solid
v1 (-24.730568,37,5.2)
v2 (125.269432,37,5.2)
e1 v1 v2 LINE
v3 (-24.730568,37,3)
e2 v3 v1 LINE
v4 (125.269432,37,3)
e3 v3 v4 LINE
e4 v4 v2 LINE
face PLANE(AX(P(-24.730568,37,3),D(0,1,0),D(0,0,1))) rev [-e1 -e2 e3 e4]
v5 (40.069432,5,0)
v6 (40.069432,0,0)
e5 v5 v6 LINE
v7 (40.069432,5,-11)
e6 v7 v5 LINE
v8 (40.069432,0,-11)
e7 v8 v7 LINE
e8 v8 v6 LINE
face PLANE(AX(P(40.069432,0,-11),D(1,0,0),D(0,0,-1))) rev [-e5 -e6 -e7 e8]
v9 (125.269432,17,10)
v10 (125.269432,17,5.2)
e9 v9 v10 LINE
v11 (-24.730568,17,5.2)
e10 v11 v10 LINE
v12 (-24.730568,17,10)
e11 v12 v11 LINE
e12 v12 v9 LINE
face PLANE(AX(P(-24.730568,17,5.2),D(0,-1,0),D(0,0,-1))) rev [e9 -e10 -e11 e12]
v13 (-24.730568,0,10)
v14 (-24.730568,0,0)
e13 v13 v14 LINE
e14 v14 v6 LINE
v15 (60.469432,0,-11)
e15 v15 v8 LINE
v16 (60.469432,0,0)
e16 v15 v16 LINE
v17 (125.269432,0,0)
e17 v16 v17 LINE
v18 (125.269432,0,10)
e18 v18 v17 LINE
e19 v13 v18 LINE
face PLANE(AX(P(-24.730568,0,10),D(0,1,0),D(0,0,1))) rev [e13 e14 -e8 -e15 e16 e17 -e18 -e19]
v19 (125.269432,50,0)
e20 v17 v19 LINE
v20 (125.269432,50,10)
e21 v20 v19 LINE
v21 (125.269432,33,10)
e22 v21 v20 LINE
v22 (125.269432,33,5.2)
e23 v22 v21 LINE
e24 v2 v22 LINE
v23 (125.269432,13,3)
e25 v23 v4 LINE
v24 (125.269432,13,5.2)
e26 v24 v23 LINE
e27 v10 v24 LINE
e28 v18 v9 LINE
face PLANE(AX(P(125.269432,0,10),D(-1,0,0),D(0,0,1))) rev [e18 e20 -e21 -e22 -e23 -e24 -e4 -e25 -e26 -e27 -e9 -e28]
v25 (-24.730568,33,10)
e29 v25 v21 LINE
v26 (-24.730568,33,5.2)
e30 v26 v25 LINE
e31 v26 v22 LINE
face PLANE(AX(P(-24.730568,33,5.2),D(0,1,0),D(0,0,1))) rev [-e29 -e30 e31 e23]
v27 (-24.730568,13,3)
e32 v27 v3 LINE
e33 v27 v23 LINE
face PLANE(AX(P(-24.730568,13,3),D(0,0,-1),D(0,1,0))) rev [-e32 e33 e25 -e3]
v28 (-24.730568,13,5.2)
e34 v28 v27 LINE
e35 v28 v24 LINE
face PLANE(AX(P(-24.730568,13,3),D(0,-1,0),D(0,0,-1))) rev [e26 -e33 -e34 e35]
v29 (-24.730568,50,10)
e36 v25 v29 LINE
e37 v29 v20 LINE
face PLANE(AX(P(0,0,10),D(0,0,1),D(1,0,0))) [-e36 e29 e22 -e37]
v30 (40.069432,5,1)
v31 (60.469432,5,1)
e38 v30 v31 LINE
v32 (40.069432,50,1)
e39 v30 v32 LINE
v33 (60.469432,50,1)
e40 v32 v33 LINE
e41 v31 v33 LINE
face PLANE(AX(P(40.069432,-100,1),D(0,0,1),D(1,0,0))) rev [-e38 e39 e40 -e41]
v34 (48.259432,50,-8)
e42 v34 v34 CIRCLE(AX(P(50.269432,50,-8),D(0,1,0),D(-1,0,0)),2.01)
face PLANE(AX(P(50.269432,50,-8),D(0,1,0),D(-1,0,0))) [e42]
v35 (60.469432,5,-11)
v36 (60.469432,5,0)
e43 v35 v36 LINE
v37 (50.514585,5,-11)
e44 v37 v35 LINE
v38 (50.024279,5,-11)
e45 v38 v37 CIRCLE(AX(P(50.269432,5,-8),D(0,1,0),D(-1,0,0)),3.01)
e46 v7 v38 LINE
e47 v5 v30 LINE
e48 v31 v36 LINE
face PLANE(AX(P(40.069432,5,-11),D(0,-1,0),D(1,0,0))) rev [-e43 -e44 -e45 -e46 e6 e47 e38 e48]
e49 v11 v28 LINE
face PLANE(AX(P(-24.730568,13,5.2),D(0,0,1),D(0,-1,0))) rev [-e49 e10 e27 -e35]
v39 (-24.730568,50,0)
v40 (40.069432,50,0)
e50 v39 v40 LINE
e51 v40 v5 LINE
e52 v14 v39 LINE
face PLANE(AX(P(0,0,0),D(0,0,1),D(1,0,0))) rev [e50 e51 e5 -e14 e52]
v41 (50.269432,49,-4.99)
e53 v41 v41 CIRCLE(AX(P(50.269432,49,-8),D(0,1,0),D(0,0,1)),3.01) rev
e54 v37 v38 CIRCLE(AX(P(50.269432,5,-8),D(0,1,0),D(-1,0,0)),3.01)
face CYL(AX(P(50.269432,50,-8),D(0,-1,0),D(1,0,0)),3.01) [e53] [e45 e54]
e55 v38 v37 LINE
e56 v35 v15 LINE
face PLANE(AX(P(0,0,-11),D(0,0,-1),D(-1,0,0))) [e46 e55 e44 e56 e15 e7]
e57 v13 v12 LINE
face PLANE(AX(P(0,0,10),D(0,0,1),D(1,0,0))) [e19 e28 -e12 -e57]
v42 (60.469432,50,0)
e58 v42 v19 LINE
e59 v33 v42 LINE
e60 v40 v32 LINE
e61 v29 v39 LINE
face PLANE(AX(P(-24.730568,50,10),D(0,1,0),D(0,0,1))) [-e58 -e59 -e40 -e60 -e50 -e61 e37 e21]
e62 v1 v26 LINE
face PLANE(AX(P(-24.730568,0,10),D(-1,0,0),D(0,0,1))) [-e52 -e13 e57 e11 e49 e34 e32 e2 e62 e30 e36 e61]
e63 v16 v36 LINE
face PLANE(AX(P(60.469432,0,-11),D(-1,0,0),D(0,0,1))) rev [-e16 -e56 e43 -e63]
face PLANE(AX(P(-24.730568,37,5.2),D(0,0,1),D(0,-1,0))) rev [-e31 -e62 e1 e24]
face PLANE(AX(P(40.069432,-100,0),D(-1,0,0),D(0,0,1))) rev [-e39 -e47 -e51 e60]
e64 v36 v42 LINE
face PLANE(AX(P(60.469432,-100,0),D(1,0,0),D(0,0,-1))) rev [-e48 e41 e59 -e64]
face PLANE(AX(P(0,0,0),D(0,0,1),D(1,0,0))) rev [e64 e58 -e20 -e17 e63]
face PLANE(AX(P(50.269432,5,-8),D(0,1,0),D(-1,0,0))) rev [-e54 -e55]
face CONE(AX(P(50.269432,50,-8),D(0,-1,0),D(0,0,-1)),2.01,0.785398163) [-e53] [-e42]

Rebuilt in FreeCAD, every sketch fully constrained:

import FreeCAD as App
import Part
import Sketcher


def edges_at(feature, points):
    """Names of the edges that pass closest to the given points."""
    edges = feature.Shape.Edges
    near = lambda p: min(range(len(edges)), key=lambda i: edges[i].distToShape(Part.Vertex(*p))[0])
    return sorted({f"Edge{near(p) + 1}" for p in points})

doc = App.newDocument("Part")
params = doc.addObject("Spreadsheet::Sheet", "Params")
for row, (alias, value) in enumerate([
    ("sketch1_width", "150 mm"),
    ("sketch1_height", "50 mm"),
    ("pad1_length", "10 mm"),
    ("sketch2_width", "24 mm"),
    ("sketch2_width2", "4 mm"),
    ("sketch2_height", "2.2 mm"),
    ("sketch2_height2", "4.8 mm"),
    ("pocket1_length", "150 mm"),
    ("sketch3_height", "1 mm"),
    ("sketch3_width", "20.4 mm"),
    ("pocket2_length", "150 mm"),
    ("sketch4_height", "5 mm"),
    ("sketch4_width", "20.4 mm"),
    ("pad2_length", "12 mm"),
    ("sketch5_diameter", "6.02 mm"),
    ("pad3_length", "45 mm"),
    ("chamfer_size", "1 mm"),
], start=1):
    params.set(f"A{row}", alias)
    params.set(f"B{row}", "=" + value)
    params.setAlias(f"B{row}", alias)

body = doc.addObject("PartDesign::Body", "Body")

sketch1 = doc.addObject("Sketcher::SketchObject", "Sketch")
body.addObject(sketch1)
sketch1.AttachmentSupport = (doc.XY_Plane, [""])
sketch1.MapMode = "FlatFace"
sketch1.addGeometry([
    Part.LineSegment(App.Vector(-25, 50, 0), App.Vector(-25, 0, 0)),
    Part.LineSegment(App.Vector(-25, 0, 0), App.Vector(125, 0, 0)),
    Part.LineSegment(App.Vector(125, 0, 0), App.Vector(125, 50, 0)),
    Part.LineSegment(App.Vector(125, 50, 0), App.Vector(-25, 50, 0)),
], False)
sketch1.addConstraint([
    Sketcher.Constraint("Coincident", 0, 2, 1, 1),
    Sketcher.Constraint("Coincident", 1, 2, 2, 1),
    Sketcher.Constraint("Coincident", 2, 2, 3, 1),
    Sketcher.Constraint("Coincident", 3, 2, 0, 1),
    Sketcher.Constraint("Vertical", 0),
    Sketcher.Constraint("Horizontal", 1),
    Sketcher.Constraint("Vertical", 2),
    Sketcher.Constraint("Horizontal", 3),
    Sketcher.Constraint("PointOnObject", 0, 2, -1),
    Sketcher.Constraint("DistanceX", 1, 1, 1, 2, 150.0),
    Sketcher.Constraint("DistanceY", 0, 2, 0, 1, 50.0),
    Sketcher.Constraint("DistanceX", 0, 2, -1, 1, 24.730568),
])
sketch1.setExpression("Constraints[9]", "Params.sketch1_width")
sketch1.setExpression("Constraints[10]", "Params.sketch1_height")
pad1 = doc.addObject("PartDesign::Pad", "Pad")
body.addObject(pad1)
pad1.Profile = sketch1
pad1.setExpression("Length", "Params.pad1_length")

sketch2 = doc.addObject("Sketcher::SketchObject", "Sketch001")
body.addObject(sketch2)
sketch2.AttachmentSupport = (doc.YZ_Plane, [""])
sketch2.MapMode = "FlatFace"
sketch2.AttachmentOffset = App.Placement(App.Vector(0, 0, 125.269432), App.Rotation())
sketch2.addGeometry([
    Part.LineSegment(App.Vector(13, 3, 0), App.Vector(37, 3, 0)),
    Part.LineSegment(App.Vector(37, 3, 0), App.Vector(37, 5.2, 0)),
    Part.LineSegment(App.Vector(37, 5.2, 0), App.Vector(33, 5.2, 0)),
    Part.LineSegment(App.Vector(33, 5.2, 0), App.Vector(33, 10, 0)),
    Part.LineSegment(App.Vector(33, 10, 0), App.Vector(17, 10, 0)),
    Part.LineSegment(App.Vector(17, 10, 0), App.Vector(17, 5.2, 0)),
    Part.LineSegment(App.Vector(17, 5.2, 0), App.Vector(13, 5.2, 0)),
    Part.LineSegment(App.Vector(13, 5.2, 0), App.Vector(13, 3, 0)),
], False)
sketch2.addConstraint([
    Sketcher.Constraint("Coincident", 0, 2, 1, 1),
    Sketcher.Constraint("Coincident", 1, 2, 2, 1),
    Sketcher.Constraint("Coincident", 2, 2, 3, 1),
    Sketcher.Constraint("Coincident", 3, 2, 4, 1),
    Sketcher.Constraint("Coincident", 4, 2, 5, 1),
    Sketcher.Constraint("Coincident", 5, 2, 6, 1),
    Sketcher.Constraint("Coincident", 6, 2, 7, 1),
    Sketcher.Constraint("Coincident", 7, 2, 0, 1),
    Sketcher.Constraint("Horizontal", 0),
    Sketcher.Constraint("Vertical", 1),
    Sketcher.Constraint("Horizontal", 2),
    Sketcher.Constraint("Vertical", 3),
    Sketcher.Constraint("Horizontal", 4),
    Sketcher.Constraint("Vertical", 5),
    Sketcher.Constraint("Horizontal", 6),
    Sketcher.Constraint("Vertical", 7),
    Sketcher.Constraint("Horizontal", 2, 2, 5, 2),
    Sketcher.Constraint("Equal", 2, 6),
    Sketcher.Constraint("DistanceX", 0, 1, 0, 2, 24.0),
    Sketcher.Constraint("DistanceX", 2, 2, 2, 1, 4.0),
    Sketcher.Constraint("DistanceY", 1, 1, 1, 2, 2.2),
    Sketcher.Constraint("DistanceY", 3, 1, 3, 2, 4.8),
    Sketcher.Constraint("DistanceX", -1, 1, 0, 2, 37.0),
    Sketcher.Constraint("DistanceY", -1, 1, 0, 2, 3.0),
])
sketch2.setExpression("Constraints[18]", "Params.sketch2_width")
sketch2.setExpression("Constraints[19]", "Params.sketch2_width2")
sketch2.setExpression("Constraints[20]", "Params.sketch2_height")
sketch2.setExpression("Constraints[21]", "Params.sketch2_height2")
pocket1 = doc.addObject("PartDesign::Pocket", "Pocket")
body.addObject(pocket1)
pocket1.Profile = sketch2
pocket1.setExpression("Length", "Params.pocket1_length")

sketch3 = doc.addObject("Sketcher::SketchObject", "Sketch002")
body.addObject(sketch3)
sketch3.AttachmentSupport = (doc.XZ_Plane, [""])
sketch3.MapMode = "FlatFace"
sketch3.AttachmentOffset = App.Placement(App.Vector(0, 0, -50), App.Rotation())
sketch3.addGeometry([
    Part.LineSegment(App.Vector(40.1, 0, 0), App.Vector(40.1, 1, 0)),
    Part.LineSegment(App.Vector(40.1, 1, 0), App.Vector(60.5, 1, 0)),
    Part.LineSegment(App.Vector(60.5, 1, 0), App.Vector(60.5, 0, 0)),
    Part.LineSegment(App.Vector(60.5, 0, 0), App.Vector(40.1, 0, 0)),
], False)
sketch3.addConstraint([
    Sketcher.Constraint("Coincident", 0, 2, 1, 1),
    Sketcher.Constraint("Coincident", 1, 2, 2, 1),
    Sketcher.Constraint("Coincident", 2, 2, 3, 1),
    Sketcher.Constraint("Coincident", 3, 2, 0, 1),
    Sketcher.Constraint("Vertical", 0),
    Sketcher.Constraint("Horizontal", 1),
    Sketcher.Constraint("Vertical", 2),
    Sketcher.Constraint("Horizontal", 3),
    Sketcher.Constraint("PointOnObject", 2, 2, -1),
    Sketcher.Constraint("DistanceY", 0, 1, 0, 2, 1.0),
    Sketcher.Constraint("DistanceX", 1, 1, 1, 2, 20.4),
    Sketcher.Constraint("DistanceX", -1, 1, 0, 2, 40.069432),
])
sketch3.setExpression("Constraints[9]", "Params.sketch3_height")
sketch3.setExpression("Constraints[10]", "Params.sketch3_width")
pocket2 = doc.addObject("PartDesign::Pocket", "Pocket001")
body.addObject(pocket2)
pocket2.Profile = sketch3
pocket2.setExpression("Length", "Params.pocket2_length")
pocket2.Reversed = True

sketch4 = doc.addObject("Sketcher::SketchObject", "Sketch003")
body.addObject(sketch4)
sketch4.AttachmentSupport = (doc.XY_Plane, [""])
sketch4.MapMode = "FlatFace"
sketch4.AttachmentOffset = App.Placement(App.Vector(0, 0, 1), App.Rotation())
sketch4.addGeometry([
    Part.LineSegment(App.Vector(60, 5, 0), App.Vector(60, 0, 0)),
    Part.LineSegment(App.Vector(60, 0, 0), App.Vector(40, 0, 0)),
    Part.LineSegment(App.Vector(40, 0, 0), App.Vector(40, 5, 0)),
    Part.LineSegment(App.Vector(40, 5, 0), App.Vector(60, 5, 0)),
], False)
sketch4.addConstraint([
    Sketcher.Constraint("Coincident", 0, 2, 1, 1),
    Sketcher.Constraint("Coincident", 1, 2, 2, 1),
    Sketcher.Constraint("Coincident", 2, 2, 3, 1),
    Sketcher.Constraint("Coincident", 3, 2, 0, 1),
    Sketcher.Constraint("Vertical", 0),
    Sketcher.Constraint("Horizontal", 1),
    Sketcher.Constraint("Vertical", 2),
    Sketcher.Constraint("Horizontal", 3),
    Sketcher.Constraint("PointOnObject", 0, 2, -1),
    Sketcher.Constraint("DistanceY", 0, 2, 0, 1, 5.0),
    Sketcher.Constraint("DistanceX", 1, 2, 1, 1, 20.4),
    Sketcher.Constraint("DistanceX", -1, 1, 0, 2, 60.469432),
])
sketch4.setExpression("Constraints[9]", "Params.sketch4_height")
sketch4.setExpression("Constraints[10]", "Params.sketch4_width")
pad2 = doc.addObject("PartDesign::Pad", "Pad001")
body.addObject(pad2)
pad2.Profile = sketch4
pad2.setExpression("Length", "Params.pad2_length")
pad2.Reversed = True

sketch5 = doc.addObject("Sketcher::SketchObject", "Sketch004")
body.addObject(sketch5)
sketch5.AttachmentSupport = (doc.XZ_Plane, [""])
sketch5.MapMode = "FlatFace"
sketch5.AttachmentOffset = App.Placement(App.Vector(0, 0, -5), App.Rotation())
sketch5.addGeometry(Part.Circle(App.Vector(50.3, -8, 0), App.Vector(0, 0, 1), 3), False)
sketch5.addConstraint([
    Sketcher.Constraint("Diameter", 0, 6.02),
    Sketcher.Constraint("DistanceY", 0, 3, -1, 1, 8.0),
    Sketcher.Constraint("DistanceX", -1, 1, 0, 3, 50.269432),
])
sketch5.setExpression("Constraints[0]", "Params.sketch5_diameter")
pad3 = doc.addObject("PartDesign::Pad", "Pad002")
body.addObject(pad3)
pad3.Profile = sketch5
pad3.setExpression("Length", "Params.pad3_length")
pad3.Reversed = True
doc.recompute()

chamfer = doc.addObject("PartDesign::Chamfer", "Chamfer")
body.addObject(chamfer)
chamfer.Base = (pad3, edges_at(pad3, [(47.259, 50, -8)]))
chamfer.setExpression("Size", "Params.chamfer_size")

doc.recompute()
